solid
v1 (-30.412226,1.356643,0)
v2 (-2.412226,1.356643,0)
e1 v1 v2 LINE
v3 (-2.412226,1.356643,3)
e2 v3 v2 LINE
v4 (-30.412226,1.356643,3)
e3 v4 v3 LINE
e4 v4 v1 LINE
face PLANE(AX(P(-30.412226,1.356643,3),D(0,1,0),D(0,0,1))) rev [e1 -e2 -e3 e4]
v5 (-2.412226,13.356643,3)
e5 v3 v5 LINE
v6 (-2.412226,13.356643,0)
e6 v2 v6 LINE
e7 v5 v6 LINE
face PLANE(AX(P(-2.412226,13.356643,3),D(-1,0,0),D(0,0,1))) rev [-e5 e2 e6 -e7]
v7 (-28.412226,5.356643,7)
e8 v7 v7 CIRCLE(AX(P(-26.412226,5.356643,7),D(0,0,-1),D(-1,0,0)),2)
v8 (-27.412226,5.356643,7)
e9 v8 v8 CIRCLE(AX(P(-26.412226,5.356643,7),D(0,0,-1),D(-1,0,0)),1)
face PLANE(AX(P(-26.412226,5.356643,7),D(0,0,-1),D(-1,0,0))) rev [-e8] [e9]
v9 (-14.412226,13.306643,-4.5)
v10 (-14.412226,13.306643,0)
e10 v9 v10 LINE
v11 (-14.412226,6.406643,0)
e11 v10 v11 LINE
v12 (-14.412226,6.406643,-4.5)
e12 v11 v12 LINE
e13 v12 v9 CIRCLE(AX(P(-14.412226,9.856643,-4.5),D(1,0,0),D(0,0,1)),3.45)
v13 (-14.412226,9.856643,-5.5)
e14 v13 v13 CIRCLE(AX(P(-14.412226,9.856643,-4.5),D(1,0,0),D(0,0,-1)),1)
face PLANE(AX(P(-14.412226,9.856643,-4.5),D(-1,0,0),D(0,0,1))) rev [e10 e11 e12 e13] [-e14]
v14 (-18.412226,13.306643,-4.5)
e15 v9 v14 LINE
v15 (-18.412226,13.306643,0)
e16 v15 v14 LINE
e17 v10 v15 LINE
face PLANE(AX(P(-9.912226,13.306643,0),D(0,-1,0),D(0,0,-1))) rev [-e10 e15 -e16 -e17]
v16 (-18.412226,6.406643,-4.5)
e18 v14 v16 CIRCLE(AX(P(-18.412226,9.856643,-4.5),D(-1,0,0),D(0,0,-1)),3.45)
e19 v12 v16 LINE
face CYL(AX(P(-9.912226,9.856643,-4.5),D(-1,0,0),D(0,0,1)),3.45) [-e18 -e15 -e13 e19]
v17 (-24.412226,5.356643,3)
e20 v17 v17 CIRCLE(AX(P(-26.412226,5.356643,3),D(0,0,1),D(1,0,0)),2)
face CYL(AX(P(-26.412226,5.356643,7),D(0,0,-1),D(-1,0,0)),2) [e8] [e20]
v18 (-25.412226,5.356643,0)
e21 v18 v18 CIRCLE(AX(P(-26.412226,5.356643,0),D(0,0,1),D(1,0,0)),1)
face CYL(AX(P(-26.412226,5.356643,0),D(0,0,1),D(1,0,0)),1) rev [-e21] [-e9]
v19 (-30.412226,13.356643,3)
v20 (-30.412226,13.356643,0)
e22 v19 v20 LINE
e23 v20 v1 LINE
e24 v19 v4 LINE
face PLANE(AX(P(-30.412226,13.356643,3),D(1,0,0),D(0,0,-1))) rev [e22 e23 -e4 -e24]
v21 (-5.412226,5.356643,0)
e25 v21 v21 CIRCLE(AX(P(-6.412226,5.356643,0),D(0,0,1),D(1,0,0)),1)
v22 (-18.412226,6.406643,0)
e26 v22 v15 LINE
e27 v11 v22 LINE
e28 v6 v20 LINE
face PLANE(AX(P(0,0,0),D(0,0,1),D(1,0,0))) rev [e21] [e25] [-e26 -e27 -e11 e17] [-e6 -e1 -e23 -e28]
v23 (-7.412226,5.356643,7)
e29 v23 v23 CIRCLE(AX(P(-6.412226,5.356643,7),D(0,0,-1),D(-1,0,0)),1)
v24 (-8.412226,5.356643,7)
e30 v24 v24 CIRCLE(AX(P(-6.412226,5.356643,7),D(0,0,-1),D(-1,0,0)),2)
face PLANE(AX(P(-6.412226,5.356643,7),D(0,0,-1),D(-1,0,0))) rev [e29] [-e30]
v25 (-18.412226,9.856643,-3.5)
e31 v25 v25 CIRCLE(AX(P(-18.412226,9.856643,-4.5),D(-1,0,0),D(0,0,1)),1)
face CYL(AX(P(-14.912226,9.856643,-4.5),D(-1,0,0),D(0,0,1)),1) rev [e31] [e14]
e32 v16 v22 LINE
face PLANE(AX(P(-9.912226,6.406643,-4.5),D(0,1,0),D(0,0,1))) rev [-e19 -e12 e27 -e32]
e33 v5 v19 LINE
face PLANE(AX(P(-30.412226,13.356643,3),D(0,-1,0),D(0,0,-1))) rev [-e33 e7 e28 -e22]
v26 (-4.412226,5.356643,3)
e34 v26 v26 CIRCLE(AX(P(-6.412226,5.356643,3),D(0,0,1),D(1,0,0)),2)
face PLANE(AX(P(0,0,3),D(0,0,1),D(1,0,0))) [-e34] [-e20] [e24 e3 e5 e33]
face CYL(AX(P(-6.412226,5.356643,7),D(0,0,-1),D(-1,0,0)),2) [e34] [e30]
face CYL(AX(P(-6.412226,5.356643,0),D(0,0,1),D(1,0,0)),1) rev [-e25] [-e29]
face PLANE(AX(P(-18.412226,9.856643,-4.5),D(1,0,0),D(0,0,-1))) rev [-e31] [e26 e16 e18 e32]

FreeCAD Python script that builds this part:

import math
import FreeCAD as App
import Part
import Sketcher

V = App.Vector

doc = App.newDocument("Part")
body = doc.addObject("PartDesign::Body", "Body")

# Sketch on XY plane
sketch1 = doc.addObject("Sketcher::SketchObject", "Sketch")
body.addObject(sketch1)
sketch1.AttachmentSupport = (doc.XY_Plane, [""])
sketch1.MapMode = "FlatFace"
sketch1.addGeometry(Part.LineSegment(V(-30, 13, 0), V(-30, 1, 0)), False)
sketch1.addGeometry(Part.LineSegment(V(-30, 1, 0), V(-2, 1, 0)), False)
sketch1.addGeometry(Part.LineSegment(V(-2, 1, 0), V(-2, 13, 0)), False)
sketch1.addGeometry(Part.LineSegment(V(-2, 13, 0), V(-30, 13, 0)), False)
sketch1.addConstraint(Sketcher.Constraint("Coincident", 0, 2, 1, 1))
sketch1.addConstraint(Sketcher.Constraint("Coincident", 1, 2, 2, 1))
sketch1.addConstraint(Sketcher.Constraint("Coincident", 2, 2, 3, 1))
sketch1.addConstraint(Sketcher.Constraint("Coincident", 3, 2, 0, 1))
sketch1.addConstraint(Sketcher.Constraint("Vertical", 0))
sketch1.addConstraint(Sketcher.Constraint("Horizontal", 1))
sketch1.addConstraint(Sketcher.Constraint("Vertical", 2))
sketch1.addConstraint(Sketcher.Constraint("Horizontal", 3))
sketch1.addConstraint(Sketcher.Constraint("DistanceX", 1, 1, 1, 2, 28.0))
sketch1.addConstraint(Sketcher.Constraint("DistanceY", 0, 2, 0, 1, 12.0))
sketch1.addConstraint(Sketcher.Constraint("DistanceX", 0, 2, -1, 1, 30.412226))
sketch1.addConstraint(Sketcher.Constraint("DistanceY", -1, 1, 0, 2, 1.356643))
pad1 = doc.addObject("PartDesign::Pad", "Pad")
body.addObject(pad1)
pad1.Profile = sketch1
pad1.Length = 3

# Sketch on XY plane
sketch2 = doc.addObject("Sketcher::SketchObject", "Sketch001")
body.addObject(sketch2)
sketch2.AttachmentSupport = (doc.XY_Plane, [""])
sketch2.MapMode = "FlatFace"
sketch2.AttachmentOffset = App.Placement(V(0, 0, 3), App.Rotation())
sketch2.addGeometry(Part.Circle(V(-26.4, 5.4, 0), V(0, 0, 1), 1), False)
sketch2.addGeometry(Part.Circle(V(-6.4, 5.4, 0), V(0, 0, 1), 1), False)
sketch2.addConstraint(Sketcher.Constraint("Equal", 0, 1))
sketch2.addConstraint(Sketcher.Constraint("Horizontal", 0, 3, 1, 3))
sketch2.addConstraint(Sketcher.Constraint("Diameter", 0, 2.0))
sketch2.addConstraint(Sketcher.Constraint("DistanceX", 0, 3, 1, 3, 20.0))
sketch2.addConstraint(Sketcher.Constraint("DistanceX", 0, 3, -1, 1, 26.412226))
sketch2.addConstraint(Sketcher.Constraint("DistanceY", -1, 1, 0, 3, 5.356643))
pocket1 = doc.addObject("PartDesign::Pocket", "Pocket")
body.addObject(pocket1)
pocket1.Profile = sketch2
pocket1.Length = 3

# Sketch on XY plane
sketch3 = doc.addObject("Sketcher::SketchObject", "Sketch002")
body.addObject(sketch3)
sketch3.AttachmentSupport = (doc.XY_Plane, [""])
sketch3.MapMode = "FlatFace"
sketch3.addGeometry(Part.LineSegment(V(-14.9, 13.4, 0), V(-14.9, 5, 0)), False)
sketch3.addGeometry(Part.LineSegment(V(-14.9, 5, 0), V(-17.9, 5, 0)), False)
sketch3.addGeometry(Part.LineSegment(V(-17.9, 5, 0), V(-17.9, 13.4, 0)), False)
sketch3.addGeometry(Part.LineSegment(V(-17.9, 13.4, 0), V(-14.9, 13.4, 0)), False)
sketch3.addConstraint(Sketcher.Constraint("Coincident", 0, 2, 1, 1))
sketch3.addConstraint(Sketcher.Constraint("Coincident", 1, 2, 2, 1))
sketch3.addConstraint(Sketcher.Constraint("Coincident", 2, 2, 3, 1))
sketch3.addConstraint(Sketcher.Constraint("Coincident", 3, 2, 0, 1))
sketch3.addConstraint(Sketcher.Constraint("Vertical", 0))
sketch3.addConstraint(Sketcher.Constraint("Horizontal", 1))
sketch3.addConstraint(Sketcher.Constraint("Vertical", 2))
sketch3.addConstraint(Sketcher.Constraint("Horizontal", 3))
sketch3.addConstraint(Sketcher.Constraint("DistanceX", 1, 2, 1, 1, 3.0))
sketch3.addConstraint(Sketcher.Constraint("DistanceY", 0, 2, 0, 1, 8.392154))
sketch3.addConstraint(Sketcher.Constraint("DistanceY", -1, 1, 0, 2, 4.96449))
sketch3.addConstraint(Sketcher.Constraint("DistanceX", 0, 2, -1, 1, 14.912226))
pad2 = doc.addObject("PartDesign::Pad", "Pad001")
body.addObject(pad2)
pad2.Profile = sketch3
pad2.Length = 8
pad2.Reversed = True

# Sketch on YZ plane
sketch4 = doc.addObject("Sketcher::SketchObject", "Sketch003")
body.addObject(sketch4)
sketch4.AttachmentSupport = (doc.YZ_Plane, [""])
sketch4.MapMode = "FlatFace"
sketch4.AttachmentOffset = App.Placement(V(0, 0, -17.912226), App.Rotation())
sketch4.addGeometry(Part.Circle(V(9.9, -4.5, 0), V(0, 0, 1), 1), False)
sketch4.addConstraint(Sketcher.Constraint("Diameter", 0, 2.0))
sketch4.addConstraint(Sketcher.Constraint("DistanceY", 0, 3, -1, 1, 4.5))
sketch4.addConstraint(Sketcher.Constraint("DistanceX", -1, 1, 0, 3, 9.856643))
pocket2 = doc.addObject("PartDesign::Pocket", "Pocket001")
body.addObject(pocket2)
pocket2.Profile = sketch4
pocket2.Length = 3
pocket2.Reversed = True

# Sketch on YZ plane
sketch5 = doc.addObject("Sketcher::SketchObject", "Sketch004")
body.addObject(sketch5)
sketch5.AttachmentSupport = (doc.YZ_Plane, [""])
sketch5.MapMode = "FlatFace"
sketch5.AttachmentOffset = App.Placement(V(0, 0, -17.912226), App.Rotation())
sketch5.addGeometry(Part.LineSegment(V(13.357, 0, 0), V(13.357, -8, 0)), False)
sketch5.addGeometry(Part.LineSegment(V(13.357, -8, 0), V(4.964, -8, 0)), False)
sketch5.addGeometry(Part.LineSegment(V(4.964, -8, 0), V(4.964, 0, 0)), False)
sketch5.addGeometry(Part.LineSegment(V(4.964, 0, 0), V(6.407, 0, 0)), False)
sketch5.addGeometry(Part.LineSegment(V(6.407, 0, 0), V(6.407, -4.5, 0)), False)
sketch5.addGeometry(Part.ArcOfCircle(Part.Circle(V(9.857, -4.5, 0), V(0, 0, 1), 3.45), math.radians(180), math.radians(360)), False)
sketch5.addGeometry(Part.LineSegment(V(13.307, -4.5, 0), V(13.307, 0, 0)), False)
sketch5.addGeometry(Part.LineSegment(V(13.307, 0, 0), V(13.357, 0, 0)), False)
sketch5.addConstraint(Sketcher.Constraint("Coincident", 0, 2, 1, 1))
sketch5.addConstraint(Sketcher.Constraint("Coincident", 1, 2, 2, 1))
sketch5.addConstraint(Sketcher.Constraint("Coincident", 2, 2, 3, 1))
sketch5.addConstraint(Sketcher.Constraint("Coincident", 3, 2, 4, 1))
sketch5.addConstraint(Sketcher.Constraint("Tangent", 4, 2, 5, 1))
sketch5.addConstraint(Sketcher.Constraint("Tangent", 5, 2, 6, 1))
sketch5.addConstraint(Sketcher.Constraint("Coincident", 6, 2, 7, 1))
sketch5.addConstraint(Sketcher.Constraint("Coincident", 7, 2, 0, 1))
sketch5.addConstraint(Sketcher.Constraint("Vertical", 0))
sketch5.addConstraint(Sketcher.Constraint("Horizontal", 1))
sketch5.addConstraint(Sketcher.Constraint("Vertical", 2))
sketch5.addConstraint(Sketcher.Constraint("Horizontal", 3))
sketch5.addConstraint(Sketcher.Constraint("Vertical", 4))
sketch5.addConstraint(Sketcher.Constraint("Vertical", 6))
sketch5.addConstraint(Sketcher.Constraint("Horizontal", 7))
sketch5.addConstraint(Sketcher.Constraint("PointOnObject", 2, 2, -1))
sketch5.addConstraint(Sketcher.Constraint("PointOnObject", 6, 2, -1))
sketch5.addConstraint(Sketcher.Constraint("DistanceY", 0, 2, 0, 1, 8.0))
sketch5.addConstraint(Sketcher.Constraint("Radius", 5, 3.45))
sketch5.addConstraint(Sketcher.Constraint("DistanceY", 4, 2, 4, 1, 4.5))
sketch5.addConstraint(Sketcher.Constraint("DistanceX", 7, 1, 7, 2, 0.05))
sketch5.addConstraint(Sketcher.Constraint("DistanceX", 1, 2, 1, 1, 8.392154))
sketch5.addConstraint(Sketcher.Constraint("DistanceX", -1, 1, 1, 2, 4.96449))
pocket3 = doc.addObject("PartDesign::Pocket", "Pocket002")
body.addObject(pocket3)
pocket3.Profile = sketch5
pocket3.Length = 8
pocket3.Reversed = True

# Sketch on XY plane
sketch6 = doc.addObject("Sketcher::SketchObject", "Sketch005")
body.addObject(sketch6)
sketch6.AttachmentSupport = (doc.XY_Plane, [""])
sketch6.MapMode = "FlatFace"
sketch6.AttachmentOffset = App.Placement(V(0, 0, 7), App.Rotation())
sketch6.addGeometry(Part.Circle(V(-6.4, 5.4, 0), V(0, 0, 1), 2), False)
sketch6.addGeometry(Part.Circle(V(-6.4, 5.4, 0), V(0, 0, 1), 1), False)
sketch6.addGeometry(Part.Circle(V(-26.4, 5.4, 0), V(0, 0, 1), 2), False)
sketch6.addGeometry(Part.Circle(V(-26.4, 5.4, 0), V(0, 0, 1), 1), False)
sketch6.addConstraint(Sketcher.Constraint("Coincident", 1, 3, 0, 3))
sketch6.addConstraint(Sketcher.Constraint("Coincident", 3, 3, 2, 3))
sketch6.addConstraint(Sketcher.Constraint("Equal", 0, 2))
sketch6.addConstraint(Sketcher.Constraint("Equal", 1, 3))
sketch6.addConstraint(Sketcher.Constraint("Horizontal", 1, 3, 2, 3))
sketch6.addConstraint(Sketcher.Constraint("Diameter", 0, 4.0))
sketch6.addConstraint(Sketcher.Constraint("Diameter", 1, 2.0))
sketch6.addConstraint(Sketcher.Constraint("DistanceX", 2, 3, 0, 3, 20.0))
sketch6.addConstraint(Sketcher.Constraint("DistanceX", 0, 3, -1, 1, 6.412226))
sketch6.addConstraint(Sketcher.Constraint("DistanceY", -1, 1, 0, 3, 5.356643))
pad3 = doc.addObject("PartDesign::Pad", "Pad002")
body.addObject(pad3)
pad3.Profile = sketch6
pad3.Length = 7
pad3.Reversed = True

# Sketch on YZ plane
sketch7 = doc.addObject("Sketcher::SketchObject", "Sketch006")
body.addObject(sketch7)
sketch7.AttachmentSupport = (doc.YZ_Plane, [""])
sketch7.MapMode = "FlatFace"
sketch7.AttachmentOffset = App.Placement(V(0, 0, -18.412226), App.Rotation())
sketch7.addGeometry(Part.LineSegment(V(6.4, -4.5, 0), V(6.4, 0, 0)), False)
sketch7.addGeometry(Part.LineSegment(V(6.4, 0, 0), V(13.3, 0, 0)), False)
sketch7.addGeometry(Part.LineSegment(V(13.3, 0, 0), V(13.3, -4.5, 0)), False)
sketch7.addGeometry(Part.ArcOfCircle(Part.Circle(V(9.9, -4.5, 0), V(0, 0, 1), 3.5), math.radians(180), math.radians(360)), False)
sketch7.addGeometry(Part.Circle(V(9.9, -4.5, 0), V(0, 0, 1), 1), False)
sketch7.addConstraint(Sketcher.Constraint("Coincident", 0, 2, 1, 1))
sketch7.addConstraint(Sketcher.Constraint("Coincident", 1, 2, 2, 1))
sketch7.addConstraint(Sketcher.Constraint("Tangent", 2, 2, 3, 2))
sketch7.addConstraint(Sketcher.Constraint("Tangent", 3, 1, 0, 1))
sketch7.addConstraint(Sketcher.Constraint("Vertical", 0))
sketch7.addConstraint(Sketcher.Constraint("Horizontal", 1))
sketch7.addConstraint(Sketcher.Constraint("Vertical", 2))
sketch7.addConstraint(Sketcher.Constraint("Coincident", 4, 3, 3, 3))
sketch7.addConstraint(Sketcher.Constraint("PointOnObject", 0, 2, -1))
sketch7.addConstraint(Sketcher.Constraint("Diameter", 4, 2.0))
sketch7.addConstraint(Sketcher.Constraint("Radius", 3, 3.45))
sketch7.addConstraint(Sketcher.Constraint("DistanceY", 0, 1, 0, 2, 4.5))
sketch7.addConstraint(Sketcher.Constraint("DistanceX", -1, 1, 3, 3, 9.856643))
pad4 = doc.addObject("PartDesign::Pad", "Pad003")
body.addObject(pad4)
pad4.Profile = sketch7
pad4.Length = 0.5

# Sketch on YZ plane
sketch8 = doc.addObject("Sketcher::SketchObject", "Sketch007")
body.addObject(sketch8)
sketch8.AttachmentSupport = (doc.YZ_Plane, [""])
sketch8.MapMode = "FlatFace"
sketch8.AttachmentOffset = App.Placement(V(0, 0, -14.912226), App.Rotation())
sketch8.addGeometry(Part.LineSegment(V(13.3, -4.5, 0), V(13.3, 0, 0)), False)
sketch8.addGeometry(Part.LineSegment(V(13.3, 0, 0), V(6.4, 0, 0)), False)
sketch8.addGeometry(Part.LineSegment(V(6.4, 0, 0), V(6.4, -4.5, 0)), False)
sketch8.addGeometry(Part.ArcOfCircle(Part.Circle(V(9.9, -4.5, 0), V(0, 0, 1), 3.5), math.radians(180), math.radians(360)), False)
sketch8.addGeometry(Part.Circle(V(9.9, -4.5, 0), V(0, 0, 1), 1), False)
sketch8.addConstraint(Sketcher.Constraint("Coincident", 0, 2, 1, 1))
sketch8.addConstraint(Sketcher.Constraint("Coincident", 1, 2, 2, 1))
sketch8.addConstraint(Sketcher.Constraint("Tangent", 2, 2, 3, 1))
sketch8.addConstraint(Sketcher.Constraint("Tangent", 3, 2, 0, 1))
sketch8.addConstraint(Sketcher.Constraint("Vertical", 0))
sketch8.addConstraint(Sketcher.Constraint("Horizontal", 1))
sketch8.addConstraint(Sketcher.Constraint("Vertical", 2))
sketch8.addConstraint(Sketcher.Constraint("Coincident", 4, 3, 3, 3))
sketch8.addConstraint(Sketcher.Constraint("PointOnObject", 0, 2, -1))
sketch8.addConstraint(Sketcher.Constraint("Diameter", 4, 2.0))
sketch8.addConstraint(Sketcher.Constraint("Radius", 3, 3.45))
sketch8.addConstraint(Sketcher.Constraint("DistanceY", 0, 1, 0, 2, 4.5))
sketch8.addConstraint(Sketcher.Constraint("DistanceX", -1, 1, 3, 3, 9.856643))
pad5 = doc.addObject("PartDesign::Pad", "Pad004")
body.addObject(pad5)
pad5.Profile = sketch8
pad5.Length = 0.5

doc.recompute()
